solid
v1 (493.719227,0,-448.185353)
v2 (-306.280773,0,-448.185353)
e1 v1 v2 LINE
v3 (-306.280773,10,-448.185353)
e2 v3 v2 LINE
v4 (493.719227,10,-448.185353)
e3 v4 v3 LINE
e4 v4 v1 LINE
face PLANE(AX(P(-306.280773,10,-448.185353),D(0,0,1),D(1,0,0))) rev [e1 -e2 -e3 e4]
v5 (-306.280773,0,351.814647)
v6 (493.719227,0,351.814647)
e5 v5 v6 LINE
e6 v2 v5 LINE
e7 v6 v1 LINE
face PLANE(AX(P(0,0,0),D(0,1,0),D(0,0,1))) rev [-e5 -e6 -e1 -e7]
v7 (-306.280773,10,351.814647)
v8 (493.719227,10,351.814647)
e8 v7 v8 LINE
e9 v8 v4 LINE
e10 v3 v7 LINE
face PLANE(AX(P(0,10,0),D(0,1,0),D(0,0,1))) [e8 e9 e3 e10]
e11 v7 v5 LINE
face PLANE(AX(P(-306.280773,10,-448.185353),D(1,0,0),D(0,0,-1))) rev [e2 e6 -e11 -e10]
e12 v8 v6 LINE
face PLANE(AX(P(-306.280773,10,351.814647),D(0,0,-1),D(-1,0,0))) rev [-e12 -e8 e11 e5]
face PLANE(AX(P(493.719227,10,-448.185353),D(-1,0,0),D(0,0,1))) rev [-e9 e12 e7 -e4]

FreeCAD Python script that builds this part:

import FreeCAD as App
import Part
import Sketcher

V = App.Vector
Q = App.Units.Quantity


def add_polygon(sketch, points):
    """Adds a closed chain of lines whose ends are joined by coincident constraints."""
    first, n = sketch.GeometryCount, len(points)
    for a, b in zip(points, points[1:] + points[:1]):
        sketch.addGeometry(Part.LineSegment(App.Vector(*a, 0), App.Vector(*b, 0)), False)
    for i in range(n):
        sketch.addConstraint(Sketcher.Constraint("Coincident", first + i, 2, first + (i + 1) % n, 1))

doc = App.newDocument("Part")
body = doc.addObject("PartDesign::Body", "Body")

# Sketch on XZ plane
sketch1 = doc.addObject("Sketcher::SketchObject", "Sketch")
body.addObject(sketch1)
sketch1.AttachmentSupport = (doc.XZ_Plane, [""])
sketch1.MapMode = "FlatFace"
add_polygon(sketch1, [(-306, -448), (-306, 352), (494, 352), (494, -448)])  # lines 0-3
sketch1.addConstraint([
    Sketcher.Constraint("Vertical", 0),
    Sketcher.Constraint("Horizontal", 1),
    Sketcher.Constraint("Vertical", 2),
    Sketcher.Constraint("Horizontal", 3),
    Sketcher.Constraint("Equal", 3, 0),
    Sketcher.Constraint("DistanceX", 1, 1, 1, 2, Q("800 mm")),
    Sketcher.Constraint("DistanceX", 0, 2, -1, 1, Q("306.280773 mm")),
    Sketcher.Constraint("DistanceY", -1, 1, 0, 2, Q("351.814647 mm")),
])
pad1 = doc.addObject("PartDesign::Pad", "Pad")
body.addObject(pad1)
pad1.Profile = sketch1
pad1.Length = 10
pad1.Reversed = True

doc.recompute()
